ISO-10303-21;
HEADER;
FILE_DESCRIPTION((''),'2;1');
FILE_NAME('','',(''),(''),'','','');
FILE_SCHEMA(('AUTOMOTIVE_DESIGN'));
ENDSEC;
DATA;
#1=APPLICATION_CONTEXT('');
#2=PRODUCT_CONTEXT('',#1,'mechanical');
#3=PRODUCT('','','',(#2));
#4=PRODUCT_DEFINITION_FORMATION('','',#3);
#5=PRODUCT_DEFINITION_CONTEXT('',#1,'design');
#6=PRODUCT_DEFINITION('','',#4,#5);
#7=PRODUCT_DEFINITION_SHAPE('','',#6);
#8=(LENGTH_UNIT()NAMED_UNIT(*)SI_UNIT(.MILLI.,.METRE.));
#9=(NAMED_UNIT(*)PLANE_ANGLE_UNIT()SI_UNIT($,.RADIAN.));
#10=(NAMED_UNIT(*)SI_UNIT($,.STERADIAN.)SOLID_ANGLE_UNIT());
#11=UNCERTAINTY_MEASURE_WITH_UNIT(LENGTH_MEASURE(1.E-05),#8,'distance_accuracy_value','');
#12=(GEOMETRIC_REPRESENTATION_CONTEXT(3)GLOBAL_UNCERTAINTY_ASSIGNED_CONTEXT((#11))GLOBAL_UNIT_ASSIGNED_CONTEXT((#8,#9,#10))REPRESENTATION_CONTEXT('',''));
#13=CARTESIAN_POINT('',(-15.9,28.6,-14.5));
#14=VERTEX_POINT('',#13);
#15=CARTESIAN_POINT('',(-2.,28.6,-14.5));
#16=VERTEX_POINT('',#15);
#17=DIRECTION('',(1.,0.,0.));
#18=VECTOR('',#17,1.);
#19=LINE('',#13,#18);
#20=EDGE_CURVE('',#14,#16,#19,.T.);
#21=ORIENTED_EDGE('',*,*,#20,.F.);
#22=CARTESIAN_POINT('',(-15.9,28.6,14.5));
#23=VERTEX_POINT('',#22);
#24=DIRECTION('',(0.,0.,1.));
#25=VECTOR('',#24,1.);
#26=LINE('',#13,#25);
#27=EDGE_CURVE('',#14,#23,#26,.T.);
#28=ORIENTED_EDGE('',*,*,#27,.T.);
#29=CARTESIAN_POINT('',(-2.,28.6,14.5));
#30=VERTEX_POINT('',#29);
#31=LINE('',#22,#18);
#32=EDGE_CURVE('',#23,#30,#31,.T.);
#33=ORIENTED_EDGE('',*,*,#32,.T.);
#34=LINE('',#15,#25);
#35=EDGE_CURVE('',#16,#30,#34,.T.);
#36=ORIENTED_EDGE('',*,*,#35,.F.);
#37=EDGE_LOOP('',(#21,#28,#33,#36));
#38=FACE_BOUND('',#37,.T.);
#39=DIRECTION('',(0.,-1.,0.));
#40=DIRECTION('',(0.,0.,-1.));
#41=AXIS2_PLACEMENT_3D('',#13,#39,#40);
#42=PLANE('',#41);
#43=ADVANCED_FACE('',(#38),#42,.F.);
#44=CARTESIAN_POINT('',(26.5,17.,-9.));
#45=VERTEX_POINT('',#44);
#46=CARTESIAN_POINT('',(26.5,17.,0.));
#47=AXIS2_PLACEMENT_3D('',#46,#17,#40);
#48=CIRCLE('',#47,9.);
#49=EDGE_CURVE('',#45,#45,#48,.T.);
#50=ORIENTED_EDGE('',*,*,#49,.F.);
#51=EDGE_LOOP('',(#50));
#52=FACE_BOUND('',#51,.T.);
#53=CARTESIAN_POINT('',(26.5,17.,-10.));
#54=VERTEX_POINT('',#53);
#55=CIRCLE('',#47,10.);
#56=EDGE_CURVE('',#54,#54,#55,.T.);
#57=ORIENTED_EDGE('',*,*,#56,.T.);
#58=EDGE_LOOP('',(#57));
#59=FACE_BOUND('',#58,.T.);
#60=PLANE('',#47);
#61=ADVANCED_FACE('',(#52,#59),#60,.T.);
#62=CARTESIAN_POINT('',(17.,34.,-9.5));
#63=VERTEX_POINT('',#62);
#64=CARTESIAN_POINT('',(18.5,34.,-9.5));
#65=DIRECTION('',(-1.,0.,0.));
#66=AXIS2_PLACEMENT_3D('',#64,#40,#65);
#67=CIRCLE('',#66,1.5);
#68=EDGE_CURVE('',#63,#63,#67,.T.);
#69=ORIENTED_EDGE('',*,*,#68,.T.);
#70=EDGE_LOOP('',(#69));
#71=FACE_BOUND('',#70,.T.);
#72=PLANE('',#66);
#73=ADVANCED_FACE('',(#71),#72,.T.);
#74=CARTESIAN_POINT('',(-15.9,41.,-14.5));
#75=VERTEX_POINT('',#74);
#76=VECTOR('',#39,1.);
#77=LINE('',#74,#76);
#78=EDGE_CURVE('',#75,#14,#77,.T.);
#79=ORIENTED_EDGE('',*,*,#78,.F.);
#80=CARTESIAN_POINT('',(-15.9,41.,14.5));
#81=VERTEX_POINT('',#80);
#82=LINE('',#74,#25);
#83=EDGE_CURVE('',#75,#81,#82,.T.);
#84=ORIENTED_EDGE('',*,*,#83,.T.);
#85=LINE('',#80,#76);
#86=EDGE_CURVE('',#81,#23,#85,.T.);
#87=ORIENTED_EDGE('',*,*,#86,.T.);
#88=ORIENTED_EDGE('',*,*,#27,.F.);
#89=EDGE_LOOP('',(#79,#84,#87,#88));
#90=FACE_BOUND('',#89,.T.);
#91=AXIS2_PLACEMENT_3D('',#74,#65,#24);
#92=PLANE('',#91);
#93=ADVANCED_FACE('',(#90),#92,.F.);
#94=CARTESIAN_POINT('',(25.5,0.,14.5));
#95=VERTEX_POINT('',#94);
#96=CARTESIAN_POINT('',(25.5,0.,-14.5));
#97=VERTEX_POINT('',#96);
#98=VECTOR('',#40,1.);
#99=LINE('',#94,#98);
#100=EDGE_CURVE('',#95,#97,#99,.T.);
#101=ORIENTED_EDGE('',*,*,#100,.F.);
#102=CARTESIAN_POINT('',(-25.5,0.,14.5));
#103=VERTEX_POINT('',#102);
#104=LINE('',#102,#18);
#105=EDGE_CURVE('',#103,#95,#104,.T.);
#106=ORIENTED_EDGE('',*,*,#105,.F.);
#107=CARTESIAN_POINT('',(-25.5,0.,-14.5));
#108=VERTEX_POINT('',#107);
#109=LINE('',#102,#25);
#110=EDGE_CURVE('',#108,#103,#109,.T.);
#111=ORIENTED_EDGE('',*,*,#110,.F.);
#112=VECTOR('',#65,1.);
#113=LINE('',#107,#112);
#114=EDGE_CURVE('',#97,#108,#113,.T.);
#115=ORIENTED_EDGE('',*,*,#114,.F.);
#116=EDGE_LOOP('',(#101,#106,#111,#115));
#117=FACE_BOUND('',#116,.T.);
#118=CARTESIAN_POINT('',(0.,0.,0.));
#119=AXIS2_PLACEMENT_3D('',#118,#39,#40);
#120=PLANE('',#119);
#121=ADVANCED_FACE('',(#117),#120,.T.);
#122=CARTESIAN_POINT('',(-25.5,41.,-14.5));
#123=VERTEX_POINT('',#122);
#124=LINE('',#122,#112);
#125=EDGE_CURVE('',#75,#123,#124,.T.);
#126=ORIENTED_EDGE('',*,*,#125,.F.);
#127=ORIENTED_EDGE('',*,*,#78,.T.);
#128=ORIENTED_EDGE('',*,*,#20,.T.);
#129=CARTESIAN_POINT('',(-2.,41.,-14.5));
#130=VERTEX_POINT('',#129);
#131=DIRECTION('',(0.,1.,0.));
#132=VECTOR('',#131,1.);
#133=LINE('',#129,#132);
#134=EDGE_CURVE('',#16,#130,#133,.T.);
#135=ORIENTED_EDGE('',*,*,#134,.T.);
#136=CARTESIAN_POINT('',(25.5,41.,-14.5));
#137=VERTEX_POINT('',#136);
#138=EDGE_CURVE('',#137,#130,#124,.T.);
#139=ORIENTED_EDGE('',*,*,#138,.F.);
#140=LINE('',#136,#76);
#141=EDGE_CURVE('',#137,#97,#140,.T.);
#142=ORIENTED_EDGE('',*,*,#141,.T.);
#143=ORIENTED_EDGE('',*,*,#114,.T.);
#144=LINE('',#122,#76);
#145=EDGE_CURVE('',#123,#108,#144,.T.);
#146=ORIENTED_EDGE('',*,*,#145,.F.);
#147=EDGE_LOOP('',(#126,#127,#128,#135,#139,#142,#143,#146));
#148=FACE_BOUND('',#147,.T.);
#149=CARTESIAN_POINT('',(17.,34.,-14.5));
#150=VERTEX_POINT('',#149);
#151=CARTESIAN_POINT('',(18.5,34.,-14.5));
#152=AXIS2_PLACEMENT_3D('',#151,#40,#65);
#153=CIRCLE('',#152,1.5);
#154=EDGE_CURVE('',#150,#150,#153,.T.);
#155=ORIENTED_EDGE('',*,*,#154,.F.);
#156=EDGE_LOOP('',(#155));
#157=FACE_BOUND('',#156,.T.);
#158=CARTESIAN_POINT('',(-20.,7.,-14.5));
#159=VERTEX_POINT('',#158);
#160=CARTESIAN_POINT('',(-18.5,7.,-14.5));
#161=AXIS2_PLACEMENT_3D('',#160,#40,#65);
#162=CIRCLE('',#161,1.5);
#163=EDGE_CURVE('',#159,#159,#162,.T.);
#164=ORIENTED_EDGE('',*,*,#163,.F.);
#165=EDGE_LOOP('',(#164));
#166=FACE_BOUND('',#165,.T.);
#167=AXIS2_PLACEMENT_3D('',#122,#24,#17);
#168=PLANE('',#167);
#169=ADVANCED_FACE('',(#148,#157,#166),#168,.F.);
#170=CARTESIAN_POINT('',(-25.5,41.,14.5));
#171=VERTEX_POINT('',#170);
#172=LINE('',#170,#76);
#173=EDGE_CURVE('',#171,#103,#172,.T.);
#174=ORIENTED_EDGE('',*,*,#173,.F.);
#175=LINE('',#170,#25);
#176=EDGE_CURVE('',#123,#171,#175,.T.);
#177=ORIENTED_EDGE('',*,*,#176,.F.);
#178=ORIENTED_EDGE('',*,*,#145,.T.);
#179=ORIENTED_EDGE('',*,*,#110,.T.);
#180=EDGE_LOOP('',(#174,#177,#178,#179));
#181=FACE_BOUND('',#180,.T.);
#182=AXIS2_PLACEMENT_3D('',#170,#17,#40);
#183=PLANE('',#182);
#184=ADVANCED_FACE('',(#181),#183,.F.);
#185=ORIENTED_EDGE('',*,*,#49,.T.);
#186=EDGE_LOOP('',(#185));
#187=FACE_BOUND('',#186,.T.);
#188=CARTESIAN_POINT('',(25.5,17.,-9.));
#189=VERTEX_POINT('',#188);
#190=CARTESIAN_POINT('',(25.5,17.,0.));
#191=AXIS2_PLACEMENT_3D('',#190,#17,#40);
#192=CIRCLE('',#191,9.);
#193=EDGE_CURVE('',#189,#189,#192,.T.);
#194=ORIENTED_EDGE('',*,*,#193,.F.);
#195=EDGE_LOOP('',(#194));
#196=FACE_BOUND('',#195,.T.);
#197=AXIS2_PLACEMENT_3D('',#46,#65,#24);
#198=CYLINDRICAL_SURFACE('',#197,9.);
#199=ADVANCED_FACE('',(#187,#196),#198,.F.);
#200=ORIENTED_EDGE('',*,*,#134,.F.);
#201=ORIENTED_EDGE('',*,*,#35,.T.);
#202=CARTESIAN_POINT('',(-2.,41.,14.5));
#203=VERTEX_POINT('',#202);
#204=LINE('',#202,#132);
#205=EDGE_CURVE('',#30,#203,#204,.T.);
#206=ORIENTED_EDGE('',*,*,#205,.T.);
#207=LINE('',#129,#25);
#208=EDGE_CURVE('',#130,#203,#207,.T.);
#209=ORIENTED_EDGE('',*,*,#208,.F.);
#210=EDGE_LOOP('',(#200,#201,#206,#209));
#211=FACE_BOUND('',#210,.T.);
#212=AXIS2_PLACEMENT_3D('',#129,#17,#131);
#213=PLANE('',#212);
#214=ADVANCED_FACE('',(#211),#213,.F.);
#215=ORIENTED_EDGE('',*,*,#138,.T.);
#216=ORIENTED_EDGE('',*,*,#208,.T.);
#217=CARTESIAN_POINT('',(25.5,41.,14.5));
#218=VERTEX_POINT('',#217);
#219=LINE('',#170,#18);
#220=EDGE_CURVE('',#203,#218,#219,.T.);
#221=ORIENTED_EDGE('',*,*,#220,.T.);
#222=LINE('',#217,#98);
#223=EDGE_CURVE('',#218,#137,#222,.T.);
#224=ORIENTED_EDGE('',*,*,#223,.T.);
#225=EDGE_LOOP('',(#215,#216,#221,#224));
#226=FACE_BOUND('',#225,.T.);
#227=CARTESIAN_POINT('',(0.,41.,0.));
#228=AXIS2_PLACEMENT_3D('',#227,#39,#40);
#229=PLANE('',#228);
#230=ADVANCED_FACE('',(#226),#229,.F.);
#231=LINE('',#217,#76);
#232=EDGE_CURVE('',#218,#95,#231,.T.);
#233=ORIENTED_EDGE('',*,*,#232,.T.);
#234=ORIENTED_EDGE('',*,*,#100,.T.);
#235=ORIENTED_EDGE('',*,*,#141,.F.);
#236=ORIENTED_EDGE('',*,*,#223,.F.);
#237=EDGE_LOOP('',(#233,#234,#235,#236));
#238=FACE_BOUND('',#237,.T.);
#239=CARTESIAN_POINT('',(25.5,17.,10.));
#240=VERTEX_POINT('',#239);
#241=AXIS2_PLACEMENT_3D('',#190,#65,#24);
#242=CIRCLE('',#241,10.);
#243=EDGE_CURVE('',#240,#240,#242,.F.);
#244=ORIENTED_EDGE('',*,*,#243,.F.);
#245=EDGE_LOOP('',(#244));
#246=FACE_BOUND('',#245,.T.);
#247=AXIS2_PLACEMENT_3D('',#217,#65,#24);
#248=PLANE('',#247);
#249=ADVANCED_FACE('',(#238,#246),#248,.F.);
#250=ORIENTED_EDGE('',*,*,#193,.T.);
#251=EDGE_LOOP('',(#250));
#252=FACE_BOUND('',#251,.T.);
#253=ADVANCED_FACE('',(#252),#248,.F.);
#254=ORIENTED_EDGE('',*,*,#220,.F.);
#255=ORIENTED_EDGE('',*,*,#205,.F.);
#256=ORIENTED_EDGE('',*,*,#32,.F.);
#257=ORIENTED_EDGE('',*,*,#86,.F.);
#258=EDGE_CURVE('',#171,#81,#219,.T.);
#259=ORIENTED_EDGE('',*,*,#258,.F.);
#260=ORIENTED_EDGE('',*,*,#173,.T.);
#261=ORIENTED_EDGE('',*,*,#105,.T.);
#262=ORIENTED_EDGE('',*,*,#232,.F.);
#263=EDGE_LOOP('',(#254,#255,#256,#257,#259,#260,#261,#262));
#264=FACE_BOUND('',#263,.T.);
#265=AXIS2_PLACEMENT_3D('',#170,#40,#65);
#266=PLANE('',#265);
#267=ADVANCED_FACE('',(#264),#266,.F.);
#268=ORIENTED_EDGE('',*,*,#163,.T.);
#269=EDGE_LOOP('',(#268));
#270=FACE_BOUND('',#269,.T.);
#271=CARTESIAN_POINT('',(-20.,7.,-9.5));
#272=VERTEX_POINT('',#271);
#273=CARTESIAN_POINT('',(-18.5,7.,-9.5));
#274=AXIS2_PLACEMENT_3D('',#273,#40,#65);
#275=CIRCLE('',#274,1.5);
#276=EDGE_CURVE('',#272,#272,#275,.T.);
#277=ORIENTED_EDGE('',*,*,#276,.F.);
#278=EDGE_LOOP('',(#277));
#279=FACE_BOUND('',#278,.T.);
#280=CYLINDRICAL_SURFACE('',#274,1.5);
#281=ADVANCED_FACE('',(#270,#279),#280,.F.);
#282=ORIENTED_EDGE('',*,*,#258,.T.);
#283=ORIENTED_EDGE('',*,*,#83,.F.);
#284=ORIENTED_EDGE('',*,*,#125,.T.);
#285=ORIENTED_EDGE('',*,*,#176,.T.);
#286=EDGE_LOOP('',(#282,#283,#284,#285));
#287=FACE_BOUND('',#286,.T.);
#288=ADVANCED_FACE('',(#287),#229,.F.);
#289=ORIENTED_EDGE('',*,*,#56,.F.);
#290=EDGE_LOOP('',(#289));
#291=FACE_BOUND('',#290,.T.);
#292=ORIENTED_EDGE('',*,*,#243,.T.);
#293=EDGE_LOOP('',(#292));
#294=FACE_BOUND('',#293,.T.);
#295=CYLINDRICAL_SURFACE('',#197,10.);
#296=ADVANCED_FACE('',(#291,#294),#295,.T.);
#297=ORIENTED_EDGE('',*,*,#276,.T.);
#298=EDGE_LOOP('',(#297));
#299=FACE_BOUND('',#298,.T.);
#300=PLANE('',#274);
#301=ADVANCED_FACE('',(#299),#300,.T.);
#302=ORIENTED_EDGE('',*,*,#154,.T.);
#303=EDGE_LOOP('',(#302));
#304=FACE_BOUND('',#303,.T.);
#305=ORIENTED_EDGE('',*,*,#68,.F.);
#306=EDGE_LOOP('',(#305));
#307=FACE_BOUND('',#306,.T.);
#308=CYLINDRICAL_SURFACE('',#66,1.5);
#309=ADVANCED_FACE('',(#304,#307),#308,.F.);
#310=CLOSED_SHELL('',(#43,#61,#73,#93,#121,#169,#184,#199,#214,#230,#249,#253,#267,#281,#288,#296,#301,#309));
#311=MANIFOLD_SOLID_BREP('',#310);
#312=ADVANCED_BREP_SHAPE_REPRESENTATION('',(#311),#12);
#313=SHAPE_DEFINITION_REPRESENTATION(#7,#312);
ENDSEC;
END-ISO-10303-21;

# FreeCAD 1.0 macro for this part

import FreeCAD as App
import Part
import Sketcher

V = App.Vector

doc = App.newDocument("Part")
body = doc.addObject("PartDesign::Body", "Body")

# Sketch on XZ plane
sketch1 = body.newObject("Sketcher::SketchObject", "Sketch")
sketch1.AttachmentSupport = (doc.getObject("XZ_Plane"), [""])
sketch1.MapMode = "FlatFace"
sketch1.addGeometry([
    Part.LineSegment(V(-26, -14, 0), V(-26, 14, 0)),
    Part.LineSegment(V(-26, 14, 0), V(26, 14, 0)),
    Part.LineSegment(V(26, 14, 0), V(26, -14, 0)),
    Part.LineSegment(V(26, -14, 0), V(-26, -14, 0)),
], False)
sketch1.addConstraint([
    Sketcher.Constraint("Coincident", 0, 2, 1, 1),
    Sketcher.Constraint("Coincident", 1, 2, 2, 1),
    Sketcher.Constraint("Coincident", 2, 2, 3, 1),
    Sketcher.Constraint("Coincident", 3, 2, 0, 1),
    Sketcher.Constraint("Vertical", 0),
    Sketcher.Constraint("Horizontal", 1),
    Sketcher.Constraint("Vertical", 2),
    Sketcher.Constraint("Horizontal", 3),
    Sketcher.Constraint("Symmetric", 0, 2, 2, 2, -1, 1),
    Sketcher.Constraint("DistanceX", 1, 1, 1, 2, 51.0),
    Sketcher.Constraint("DistanceY", 0, 1, 0, 2, 29.0),
])
pad1 = body.newObject("PartDesign::Pad", "Pad")
pad1.Profile = sketch1
pad1.Length = 41
pad1.Reversed = True

# Sketch on YZ plane
sketch2 = body.newObject("Sketcher::SketchObject", "Sketch001")
sketch2.AttachmentSupport = (doc.getObject("YZ_Plane"), [""])
sketch2.MapMode = "FlatFace"
sketch2.AttachmentOffset = App.Placement(V(0, 0, 25.5), App.Rotation())
sketch2.addGeometry([
    Part.Circle(V(17, 0, 0), V(0, 0, 1), 10),
    Part.Circle(V(17, 0, 0), V(0, 0, 1), 9),
], False)
sketch2.addConstraint([
    Sketcher.Constraint("Coincident", 1, 3, 0, 3),
    Sketcher.Constraint("PointOnObject", 0, 3, -1),
    Sketcher.Constraint("Diameter", 0, 20.0),
    Sketcher.Constraint("Diameter", 1, 18.0),
    Sketcher.Constraint("DistanceX", -1, 1, 0, 3, 17.0),
])
pad2 = body.newObject("PartDesign::Pad", "Pad001")
pad2.Profile = sketch2
pad2.Length = 1

# Sketch on XY plane
sketch3 = body.newObject("Sketcher::SketchObject", "Sketch002")
sketch3.AttachmentSupport = (doc.getObject("XY_Plane"), [""])
sketch3.MapMode = "FlatFace"
sketch3.AttachmentOffset = App.Placement(V(0, 0, 14.5), App.Rotation())
sketch3.addGeometry([
    Part.LineSegment(V(-16, 41, 0), V(-16, 29, 0)),
    Part.LineSegment(V(-16, 29, 0), V(-2, 29, 0)),
    Part.LineSegment(V(-2, 29, 0), V(-2, 41, 0)),
    Part.LineSegment(V(-2, 41, 0), V(-16, 41, 0)),
], False)
sketch3.addConstraint([
    Sketcher.Constraint("Coincident", 0, 2, 1, 1),
    Sketcher.Constraint("Coincident", 1, 2, 2, 1),
    Sketcher.Constraint("Coincident", 2, 2, 3, 1),
    Sketcher.Constraint("Coincident", 3, 2, 0, 1),
    Sketcher.Constraint("Vertical", 0),
    Sketcher.Constraint("Horizontal", 1),
    Sketcher.Constraint("Vertical", 2),
    Sketcher.Constraint("Horizontal", 3),
    Sketcher.Constraint("DistanceX", 1, 1, 1, 2, 13.9),
    Sketcher.Constraint("DistanceY", 0, 2, 0, 1, 12.4),
    Sketcher.Constraint("DistanceX", 1, 2, -1, 1, 2.0),
    Sketcher.Constraint("DistanceY", -1, 1, 2, 2, 41.0),
])
pocket1 = body.newObject("PartDesign::Pocket", "Pocket")
pocket1.Profile = sketch3
pocket1.Type = "ThroughAll"

# Sketch on XY plane
sketch4 = body.newObject("Sketcher::SketchObject", "Sketch003")
sketch4.AttachmentSupport = (doc.getObject("XY_Plane"), [""])
sketch4.MapMode = "FlatFace"
sketch4.AttachmentOffset = App.Placement(V(0, 0, -14.5), App.Rotation())
sketch4.addGeometry([
    Part.Circle(V(18.5, 34, 0), V(0, 0, 1), 1.5),
    Part.Circle(V(-18.5, 7, 0), V(0, 0, 1), 1.5),
], False)
sketch4.addConstraint([
    Sketcher.Constraint("Equal", 0, 1),
    Sketcher.Constraint("Diameter", 0, 3.0),
    Sketcher.Constraint("DistanceY", -1, 1, 0, 3, 34.0),
    Sketcher.Constraint("DistanceY", -1, 1, 1, 3, 7.0),
    Sketcher.Constraint("DistanceX", 1, 3, 0, 3, 37.0),
    Sketcher.Constraint("DistanceX", -1, 1, 0, 3, 18.5),
])
pocket2 = body.newObject("PartDesign::Pocket", "Pocket001")
pocket2.Profile = sketch4
pocket2.Length = 5
pocket2.Reversed = True

doc.recompute()
